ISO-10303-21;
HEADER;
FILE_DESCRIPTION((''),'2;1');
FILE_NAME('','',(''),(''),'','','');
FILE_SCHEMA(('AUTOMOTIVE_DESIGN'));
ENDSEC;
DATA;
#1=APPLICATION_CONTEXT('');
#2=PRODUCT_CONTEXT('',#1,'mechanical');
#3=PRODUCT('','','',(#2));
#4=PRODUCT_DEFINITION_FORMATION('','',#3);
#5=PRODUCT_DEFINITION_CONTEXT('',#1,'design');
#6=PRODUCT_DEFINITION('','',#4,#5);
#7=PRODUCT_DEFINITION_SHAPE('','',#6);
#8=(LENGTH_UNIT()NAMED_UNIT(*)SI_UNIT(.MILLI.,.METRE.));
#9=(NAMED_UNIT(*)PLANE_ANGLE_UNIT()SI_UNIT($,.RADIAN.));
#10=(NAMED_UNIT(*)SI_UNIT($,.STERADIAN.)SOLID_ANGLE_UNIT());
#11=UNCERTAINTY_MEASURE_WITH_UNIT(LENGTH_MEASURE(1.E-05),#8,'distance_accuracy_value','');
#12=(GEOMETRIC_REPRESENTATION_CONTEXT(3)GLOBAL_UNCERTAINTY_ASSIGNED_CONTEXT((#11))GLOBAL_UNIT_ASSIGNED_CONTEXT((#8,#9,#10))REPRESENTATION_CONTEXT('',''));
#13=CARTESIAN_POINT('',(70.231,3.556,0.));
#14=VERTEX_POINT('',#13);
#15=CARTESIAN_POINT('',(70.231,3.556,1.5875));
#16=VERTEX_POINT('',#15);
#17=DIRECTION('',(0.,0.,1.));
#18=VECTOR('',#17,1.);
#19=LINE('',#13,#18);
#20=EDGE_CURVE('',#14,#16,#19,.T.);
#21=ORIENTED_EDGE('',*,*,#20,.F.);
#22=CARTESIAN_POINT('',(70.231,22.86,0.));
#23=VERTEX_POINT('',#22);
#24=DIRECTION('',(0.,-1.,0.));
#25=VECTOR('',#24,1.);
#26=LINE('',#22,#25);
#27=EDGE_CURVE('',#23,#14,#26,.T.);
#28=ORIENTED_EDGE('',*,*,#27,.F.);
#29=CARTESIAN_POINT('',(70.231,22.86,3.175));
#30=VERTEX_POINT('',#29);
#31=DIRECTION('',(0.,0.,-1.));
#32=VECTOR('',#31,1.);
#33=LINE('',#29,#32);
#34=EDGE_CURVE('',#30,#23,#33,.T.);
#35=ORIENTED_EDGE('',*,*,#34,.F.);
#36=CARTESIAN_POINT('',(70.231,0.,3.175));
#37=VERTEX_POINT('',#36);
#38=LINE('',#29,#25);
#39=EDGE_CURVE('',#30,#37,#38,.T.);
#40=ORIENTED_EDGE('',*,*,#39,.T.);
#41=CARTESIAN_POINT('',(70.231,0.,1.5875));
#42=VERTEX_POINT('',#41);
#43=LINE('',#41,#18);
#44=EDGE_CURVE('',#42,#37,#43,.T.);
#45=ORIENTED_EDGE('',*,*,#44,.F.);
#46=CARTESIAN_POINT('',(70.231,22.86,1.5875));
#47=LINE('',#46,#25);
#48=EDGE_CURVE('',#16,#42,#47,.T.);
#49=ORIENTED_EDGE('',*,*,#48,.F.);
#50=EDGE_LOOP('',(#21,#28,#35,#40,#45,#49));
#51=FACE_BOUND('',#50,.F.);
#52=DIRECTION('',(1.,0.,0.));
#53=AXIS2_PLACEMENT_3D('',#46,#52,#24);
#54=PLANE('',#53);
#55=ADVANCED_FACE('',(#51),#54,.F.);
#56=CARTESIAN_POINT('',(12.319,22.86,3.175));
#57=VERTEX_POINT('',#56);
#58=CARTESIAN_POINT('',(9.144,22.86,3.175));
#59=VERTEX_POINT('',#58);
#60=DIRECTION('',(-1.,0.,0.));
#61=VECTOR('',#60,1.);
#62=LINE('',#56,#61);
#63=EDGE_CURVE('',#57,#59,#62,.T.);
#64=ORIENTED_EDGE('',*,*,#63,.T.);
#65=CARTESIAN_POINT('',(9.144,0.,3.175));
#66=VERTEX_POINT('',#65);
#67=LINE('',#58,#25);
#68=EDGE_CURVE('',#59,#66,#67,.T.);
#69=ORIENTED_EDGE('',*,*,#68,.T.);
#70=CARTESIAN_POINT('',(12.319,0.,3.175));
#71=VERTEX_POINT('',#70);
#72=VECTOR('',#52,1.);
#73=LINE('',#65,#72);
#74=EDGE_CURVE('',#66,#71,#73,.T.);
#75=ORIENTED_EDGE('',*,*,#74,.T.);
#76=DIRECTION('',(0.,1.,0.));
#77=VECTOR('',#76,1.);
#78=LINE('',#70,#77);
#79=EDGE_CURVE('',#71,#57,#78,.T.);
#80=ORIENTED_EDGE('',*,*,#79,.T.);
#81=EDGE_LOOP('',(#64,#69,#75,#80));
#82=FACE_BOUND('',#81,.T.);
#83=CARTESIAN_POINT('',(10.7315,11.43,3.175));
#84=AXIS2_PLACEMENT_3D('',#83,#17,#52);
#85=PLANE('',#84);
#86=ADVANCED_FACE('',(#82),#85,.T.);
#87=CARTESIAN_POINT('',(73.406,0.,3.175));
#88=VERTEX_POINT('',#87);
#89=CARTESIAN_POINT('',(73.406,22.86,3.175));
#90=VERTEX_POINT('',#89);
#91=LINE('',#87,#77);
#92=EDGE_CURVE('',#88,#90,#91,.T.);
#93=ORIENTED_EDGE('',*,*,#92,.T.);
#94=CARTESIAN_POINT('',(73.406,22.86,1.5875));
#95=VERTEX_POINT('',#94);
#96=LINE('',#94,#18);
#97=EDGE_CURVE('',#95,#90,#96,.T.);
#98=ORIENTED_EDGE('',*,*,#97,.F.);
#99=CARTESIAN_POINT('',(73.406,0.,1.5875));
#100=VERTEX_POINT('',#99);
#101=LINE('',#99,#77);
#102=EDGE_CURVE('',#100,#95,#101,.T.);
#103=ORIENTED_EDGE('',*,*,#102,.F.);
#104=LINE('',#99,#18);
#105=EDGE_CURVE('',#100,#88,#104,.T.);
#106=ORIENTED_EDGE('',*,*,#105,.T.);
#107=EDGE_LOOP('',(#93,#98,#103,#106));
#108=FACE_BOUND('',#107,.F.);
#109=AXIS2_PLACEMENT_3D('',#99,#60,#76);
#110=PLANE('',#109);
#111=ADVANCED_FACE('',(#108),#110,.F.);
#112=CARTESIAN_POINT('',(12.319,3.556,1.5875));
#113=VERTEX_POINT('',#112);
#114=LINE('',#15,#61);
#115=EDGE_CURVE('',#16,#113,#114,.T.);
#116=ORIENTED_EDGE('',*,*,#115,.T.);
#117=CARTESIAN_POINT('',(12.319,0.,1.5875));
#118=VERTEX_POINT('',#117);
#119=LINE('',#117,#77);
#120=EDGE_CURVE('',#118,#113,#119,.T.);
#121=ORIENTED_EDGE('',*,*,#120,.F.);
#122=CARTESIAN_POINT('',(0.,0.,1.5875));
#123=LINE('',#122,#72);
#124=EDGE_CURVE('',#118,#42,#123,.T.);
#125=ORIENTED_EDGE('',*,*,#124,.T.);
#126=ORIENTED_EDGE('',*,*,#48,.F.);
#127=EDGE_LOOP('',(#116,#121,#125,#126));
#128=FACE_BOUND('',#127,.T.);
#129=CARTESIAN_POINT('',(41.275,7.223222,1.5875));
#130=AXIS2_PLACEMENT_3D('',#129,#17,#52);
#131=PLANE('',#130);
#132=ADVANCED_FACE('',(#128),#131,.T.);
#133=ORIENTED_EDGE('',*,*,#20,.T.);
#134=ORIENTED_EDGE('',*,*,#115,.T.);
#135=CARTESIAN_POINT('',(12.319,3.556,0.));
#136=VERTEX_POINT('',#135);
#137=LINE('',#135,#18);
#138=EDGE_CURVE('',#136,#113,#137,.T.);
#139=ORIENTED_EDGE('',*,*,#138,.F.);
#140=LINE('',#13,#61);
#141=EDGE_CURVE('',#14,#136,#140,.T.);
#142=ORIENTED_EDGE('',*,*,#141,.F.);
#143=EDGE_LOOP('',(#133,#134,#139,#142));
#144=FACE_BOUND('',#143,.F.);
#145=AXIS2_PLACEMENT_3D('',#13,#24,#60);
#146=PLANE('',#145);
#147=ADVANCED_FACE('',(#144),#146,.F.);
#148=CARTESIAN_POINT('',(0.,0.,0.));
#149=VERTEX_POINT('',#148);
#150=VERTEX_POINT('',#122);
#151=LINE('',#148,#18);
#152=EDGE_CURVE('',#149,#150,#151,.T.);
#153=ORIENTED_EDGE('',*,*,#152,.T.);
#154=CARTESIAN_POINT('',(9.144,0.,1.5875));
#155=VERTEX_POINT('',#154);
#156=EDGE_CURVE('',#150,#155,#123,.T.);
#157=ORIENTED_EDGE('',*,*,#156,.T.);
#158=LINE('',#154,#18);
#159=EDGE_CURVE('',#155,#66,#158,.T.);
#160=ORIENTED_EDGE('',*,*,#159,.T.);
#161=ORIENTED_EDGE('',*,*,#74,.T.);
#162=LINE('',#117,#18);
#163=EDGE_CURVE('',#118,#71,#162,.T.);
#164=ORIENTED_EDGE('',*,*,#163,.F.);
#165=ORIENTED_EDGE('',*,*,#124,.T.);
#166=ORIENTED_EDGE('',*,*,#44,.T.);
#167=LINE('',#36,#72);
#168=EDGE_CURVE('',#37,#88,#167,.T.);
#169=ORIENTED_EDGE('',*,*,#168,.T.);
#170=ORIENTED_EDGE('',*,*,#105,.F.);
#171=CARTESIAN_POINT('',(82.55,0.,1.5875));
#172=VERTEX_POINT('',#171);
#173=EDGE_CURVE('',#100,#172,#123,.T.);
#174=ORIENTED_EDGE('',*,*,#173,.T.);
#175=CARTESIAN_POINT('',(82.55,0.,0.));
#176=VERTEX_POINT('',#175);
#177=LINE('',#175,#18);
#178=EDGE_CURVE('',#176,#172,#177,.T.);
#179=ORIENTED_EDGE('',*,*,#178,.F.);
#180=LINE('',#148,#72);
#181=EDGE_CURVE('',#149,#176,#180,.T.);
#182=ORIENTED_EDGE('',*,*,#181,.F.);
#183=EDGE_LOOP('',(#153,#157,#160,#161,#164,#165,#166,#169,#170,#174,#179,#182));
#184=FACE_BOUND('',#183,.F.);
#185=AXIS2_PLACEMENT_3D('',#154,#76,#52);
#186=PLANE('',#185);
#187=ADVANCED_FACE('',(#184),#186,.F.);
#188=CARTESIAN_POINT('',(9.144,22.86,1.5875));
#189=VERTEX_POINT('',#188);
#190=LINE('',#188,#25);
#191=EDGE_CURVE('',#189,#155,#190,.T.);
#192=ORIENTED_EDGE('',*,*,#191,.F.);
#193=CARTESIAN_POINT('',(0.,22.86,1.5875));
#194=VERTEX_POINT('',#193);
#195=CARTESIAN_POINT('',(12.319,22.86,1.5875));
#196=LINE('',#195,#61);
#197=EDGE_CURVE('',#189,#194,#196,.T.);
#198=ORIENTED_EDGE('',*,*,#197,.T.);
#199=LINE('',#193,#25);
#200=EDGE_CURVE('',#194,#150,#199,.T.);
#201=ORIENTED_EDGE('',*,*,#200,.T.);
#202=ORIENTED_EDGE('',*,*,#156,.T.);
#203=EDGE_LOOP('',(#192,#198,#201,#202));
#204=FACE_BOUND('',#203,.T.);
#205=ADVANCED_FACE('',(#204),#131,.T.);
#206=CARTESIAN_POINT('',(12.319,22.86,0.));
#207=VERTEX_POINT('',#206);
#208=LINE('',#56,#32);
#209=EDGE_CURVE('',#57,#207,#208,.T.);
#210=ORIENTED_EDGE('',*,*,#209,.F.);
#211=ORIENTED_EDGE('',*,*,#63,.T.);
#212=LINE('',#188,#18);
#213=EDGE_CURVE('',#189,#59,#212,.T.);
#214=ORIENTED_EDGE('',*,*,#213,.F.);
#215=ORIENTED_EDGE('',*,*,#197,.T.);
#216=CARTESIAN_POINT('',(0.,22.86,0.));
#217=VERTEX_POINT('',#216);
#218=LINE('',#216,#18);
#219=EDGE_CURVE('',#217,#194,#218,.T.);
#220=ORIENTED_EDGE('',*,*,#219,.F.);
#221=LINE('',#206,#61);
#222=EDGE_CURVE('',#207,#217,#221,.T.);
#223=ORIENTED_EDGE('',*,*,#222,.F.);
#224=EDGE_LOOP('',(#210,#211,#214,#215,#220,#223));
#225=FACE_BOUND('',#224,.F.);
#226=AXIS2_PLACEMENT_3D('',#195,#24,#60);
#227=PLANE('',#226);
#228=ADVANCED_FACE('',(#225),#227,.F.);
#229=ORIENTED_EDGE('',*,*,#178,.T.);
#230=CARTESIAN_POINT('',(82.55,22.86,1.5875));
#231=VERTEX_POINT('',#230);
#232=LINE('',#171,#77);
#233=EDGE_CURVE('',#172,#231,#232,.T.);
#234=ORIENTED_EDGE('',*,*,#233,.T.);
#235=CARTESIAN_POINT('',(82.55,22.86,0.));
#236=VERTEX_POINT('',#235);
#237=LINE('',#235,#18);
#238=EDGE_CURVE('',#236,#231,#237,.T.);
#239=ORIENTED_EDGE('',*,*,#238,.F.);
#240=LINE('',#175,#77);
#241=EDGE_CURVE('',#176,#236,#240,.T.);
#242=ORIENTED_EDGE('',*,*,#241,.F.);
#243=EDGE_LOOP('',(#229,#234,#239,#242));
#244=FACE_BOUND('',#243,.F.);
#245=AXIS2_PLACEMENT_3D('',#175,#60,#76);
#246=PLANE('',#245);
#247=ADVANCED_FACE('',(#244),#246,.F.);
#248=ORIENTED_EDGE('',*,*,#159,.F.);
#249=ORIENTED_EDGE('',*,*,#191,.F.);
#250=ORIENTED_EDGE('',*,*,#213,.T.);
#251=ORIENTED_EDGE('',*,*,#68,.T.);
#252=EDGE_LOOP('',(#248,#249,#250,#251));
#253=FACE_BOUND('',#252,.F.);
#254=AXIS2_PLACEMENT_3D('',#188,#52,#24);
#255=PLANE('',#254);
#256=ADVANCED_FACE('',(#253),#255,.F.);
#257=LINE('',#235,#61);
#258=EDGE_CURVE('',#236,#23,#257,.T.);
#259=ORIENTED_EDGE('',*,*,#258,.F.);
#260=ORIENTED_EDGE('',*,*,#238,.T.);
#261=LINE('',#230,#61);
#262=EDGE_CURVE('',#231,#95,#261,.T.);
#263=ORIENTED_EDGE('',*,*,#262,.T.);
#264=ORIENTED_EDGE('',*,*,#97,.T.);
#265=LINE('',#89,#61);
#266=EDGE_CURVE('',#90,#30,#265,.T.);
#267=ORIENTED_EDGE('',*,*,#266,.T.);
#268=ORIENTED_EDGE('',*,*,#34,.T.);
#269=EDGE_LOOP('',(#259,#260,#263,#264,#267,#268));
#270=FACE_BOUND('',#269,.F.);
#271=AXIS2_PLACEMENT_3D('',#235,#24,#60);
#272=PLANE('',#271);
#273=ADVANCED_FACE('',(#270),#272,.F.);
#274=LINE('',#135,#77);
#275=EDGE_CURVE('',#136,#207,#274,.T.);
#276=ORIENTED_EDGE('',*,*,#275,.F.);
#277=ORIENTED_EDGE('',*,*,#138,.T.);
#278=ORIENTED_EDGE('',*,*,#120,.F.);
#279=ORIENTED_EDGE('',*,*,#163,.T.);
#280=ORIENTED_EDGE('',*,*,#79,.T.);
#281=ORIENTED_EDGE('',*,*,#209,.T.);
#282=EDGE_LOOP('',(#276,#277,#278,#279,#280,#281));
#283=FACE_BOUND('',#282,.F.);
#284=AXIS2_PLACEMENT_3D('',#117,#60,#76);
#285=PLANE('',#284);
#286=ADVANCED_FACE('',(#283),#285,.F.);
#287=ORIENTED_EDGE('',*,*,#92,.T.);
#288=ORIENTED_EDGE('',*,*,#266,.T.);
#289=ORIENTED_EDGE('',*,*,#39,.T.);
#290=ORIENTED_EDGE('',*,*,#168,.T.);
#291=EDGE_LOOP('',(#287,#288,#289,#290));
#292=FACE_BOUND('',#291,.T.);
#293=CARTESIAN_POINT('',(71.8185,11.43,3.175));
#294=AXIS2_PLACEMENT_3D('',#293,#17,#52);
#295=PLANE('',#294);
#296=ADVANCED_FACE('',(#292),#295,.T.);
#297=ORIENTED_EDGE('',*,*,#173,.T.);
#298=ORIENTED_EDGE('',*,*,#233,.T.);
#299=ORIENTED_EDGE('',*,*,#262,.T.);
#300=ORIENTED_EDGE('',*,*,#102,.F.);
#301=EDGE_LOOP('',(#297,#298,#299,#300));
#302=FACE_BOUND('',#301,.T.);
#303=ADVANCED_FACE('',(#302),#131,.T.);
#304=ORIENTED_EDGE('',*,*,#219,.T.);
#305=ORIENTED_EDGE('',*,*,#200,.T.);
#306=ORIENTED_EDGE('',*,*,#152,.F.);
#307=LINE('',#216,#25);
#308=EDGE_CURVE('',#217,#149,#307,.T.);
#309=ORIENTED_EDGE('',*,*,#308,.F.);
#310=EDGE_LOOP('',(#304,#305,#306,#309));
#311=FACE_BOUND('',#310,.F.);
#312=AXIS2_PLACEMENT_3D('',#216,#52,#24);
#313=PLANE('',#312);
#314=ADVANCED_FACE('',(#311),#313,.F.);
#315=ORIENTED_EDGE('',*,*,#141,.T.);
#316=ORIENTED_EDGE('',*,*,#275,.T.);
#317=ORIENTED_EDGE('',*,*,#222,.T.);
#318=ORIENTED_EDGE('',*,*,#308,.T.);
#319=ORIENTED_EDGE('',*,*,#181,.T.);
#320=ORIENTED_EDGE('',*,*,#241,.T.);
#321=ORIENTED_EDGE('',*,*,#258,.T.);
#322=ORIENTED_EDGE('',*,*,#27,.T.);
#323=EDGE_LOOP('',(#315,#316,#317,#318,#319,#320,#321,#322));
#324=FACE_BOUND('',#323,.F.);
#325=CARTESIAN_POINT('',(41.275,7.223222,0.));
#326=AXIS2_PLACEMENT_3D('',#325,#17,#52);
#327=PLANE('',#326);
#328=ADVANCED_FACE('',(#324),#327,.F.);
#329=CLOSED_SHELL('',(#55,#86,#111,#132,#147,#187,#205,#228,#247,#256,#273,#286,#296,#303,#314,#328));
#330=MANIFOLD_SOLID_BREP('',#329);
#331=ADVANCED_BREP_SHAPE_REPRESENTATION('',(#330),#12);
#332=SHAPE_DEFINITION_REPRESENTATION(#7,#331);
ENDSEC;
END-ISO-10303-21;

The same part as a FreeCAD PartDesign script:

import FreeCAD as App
import Part
import Sketcher

V = App.Vector
Q = App.Units.Quantity

doc = App.newDocument("Part")
body = doc.addObject("PartDesign::Body", "Body")

# Sketch on XY plane
sketch1 = doc.addObject("Sketcher::SketchObject", "Sketch")
body.addObject(sketch1)
sketch1.AttachmentSupport = (doc.XY_Plane, [""])
sketch1.MapMode = "FlatFace"
sketch1.addGeometry([
    Part.LineSegment(V(0, 23, 0), V(0, 0, 0)),  # 0
    Part.LineSegment(V(0, 0, 0), V(83, 0, 0)),  # 1
    Part.LineSegment(V(83, 0, 0), V(83, 23, 0)),  # 2
    Part.LineSegment(V(83, 23, 0), V(70, 23, 0)),  # 3
    Part.LineSegment(V(70, 23, 0), V(70, 4, 0)),  # 4
    Part.LineSegment(V(70, 4, 0), V(12, 4, 0)),  # 5
    Part.LineSegment(V(12, 4, 0), V(12, 23, 0)),  # 6
    Part.LineSegment(V(12, 23, 0), V(0, 23, 0)),  # 7
], False)
sketch1.addConstraint([
    Sketcher.Constraint("Coincident", 0, 2, 1, 1),
    Sketcher.Constraint("Coincident", 1, 2, 2, 1),
    Sketcher.Constraint("Coincident", 2, 2, 3, 1),
    Sketcher.Constraint("Coincident", 3, 2, 4, 1),
    Sketcher.Constraint("Coincident", 4, 2, 5, 1),
    Sketcher.Constraint("Coincident", 5, 2, 6, 1),
    Sketcher.Constraint("Coincident", 6, 2, 7, 1),
    Sketcher.Constraint("Coincident", 7, 2, 0, 1),
    Sketcher.Constraint("Vertical", 0),
    Sketcher.Constraint("Horizontal", 1),
    Sketcher.Constraint("Vertical", 2),
    Sketcher.Constraint("Horizontal", 3),
    Sketcher.Constraint("Vertical", 4),
    Sketcher.Constraint("Horizontal", 5),
    Sketcher.Constraint("Vertical", 6),
    Sketcher.Constraint("Horizontal", 7),
    Sketcher.Constraint("Coincident", 0, 2, -1, 1),
    Sketcher.Constraint("Horizontal", 3, 2, 6, 2),
    Sketcher.Constraint("Equal", 3, 7),
    Sketcher.Constraint("DistanceY", 0, 2, 0, 1, Q("0.9 in")),
    Sketcher.Constraint("DistanceX", 1, 1, 1, 2, Q("3.25 in")),
    Sketcher.Constraint("DistanceX", 5, 2, 5, 1, Q("2.28 in")),
    Sketcher.Constraint("DistanceY", 4, 2, 4, 1, Q("0.76 in")),
])
pad1 = doc.addObject("PartDesign::Pad", "Pad")
body.addObject(pad1)
pad1.Profile = sketch1
pad1.Length = Q("0.0625 in")

# Sketch on XY plane
sketch2 = doc.addObject("Sketcher::SketchObject", "Sketch001")
body.addObject(sketch2)
sketch2.AttachmentSupport = (doc.XY_Plane, [""])
sketch2.MapMode = "FlatFace"
sketch2.AttachmentOffset = App.Placement(V(0, 0, 0.0625 * 25.4), App.Rotation())
sketch2.addGeometry([
    Part.LineSegment(V(12.3, 22.9, 0), V(9.1, 22.9, 0)),  # 0
    Part.LineSegment(V(9.1, 22.9, 0), V(9.1, 0, 0)),  # 1
    Part.LineSegment(V(9.1, 0, 0), V(12.3, 0, 0)),  # 2
    Part.LineSegment(V(12.3, 0, 0), V(12.3, 22.9, 0)),  # 3
    Part.LineSegment(V(70.2, 22.9, 0), V(70.2, 0, 0)),  # 4
    Part.LineSegment(V(70.2, 0, 0), V(73.4, 0, 0)),  # 5
    Part.LineSegment(V(73.4, 0, 0), V(73.4, 22.9, 0)),  # 6
    Part.LineSegment(V(73.4, 22.9, 0), V(70.2, 22.9, 0)),  # 7
], False)
sketch2.addConstraint([
    Sketcher.Constraint("Coincident", 0, 2, 1, 1),
    Sketcher.Constraint("Coincident", 1, 2, 2, 1),
    Sketcher.Constraint("Coincident", 2, 2, 3, 1),
    Sketcher.Constraint("Coincident", 3, 2, 0, 1),
    Sketcher.Constraint("Coincident", 4, 2, 5, 1),
    Sketcher.Constraint("Coincident", 5, 2, 6, 1),
    Sketcher.Constraint("Coincident", 6, 2, 7, 1),
    Sketcher.Constraint("Coincident", 7, 2, 4, 1),
    Sketcher.Constraint("Horizontal", 0),
    Sketcher.Constraint("Vertical", 1),
    Sketcher.Constraint("Horizontal", 2),
    Sketcher.Constraint("Vertical", 3),
    Sketcher.Constraint("Vertical", 4),
    Sketcher.Constraint("Horizontal", 5),
    Sketcher.Constraint("Vertical", 6),
    Sketcher.Constraint("Horizontal", 7),
    Sketcher.Constraint("PointOnObject", 1, 2, -1),
    Sketcher.Constraint("PointOnObject", 4, 2, -1),
    Sketcher.Constraint("Horizontal", 3, 2, 6, 2),
    Sketcher.Constraint("Equal", 2, 5),
    Sketcher.Constraint("DistanceY", 1, 2, 1, 1, Q("0.9 in")),
    Sketcher.Constraint("DistanceX", 0, 2, 0, 1, Q("0.125 in")),
    Sketcher.Constraint("DistanceX", -1, 1, 0, 2, Q("0.36 in")),
    Sketcher.Constraint("DistanceX", -1, 1, 5, 2, Q("2.89 in")),
])
pad2 = doc.addObject("PartDesign::Pad", "Pad001")
body.addObject(pad2)
pad2.Profile = sketch2
pad2.Length = Q("0.0625 in")

doc.recompute()
